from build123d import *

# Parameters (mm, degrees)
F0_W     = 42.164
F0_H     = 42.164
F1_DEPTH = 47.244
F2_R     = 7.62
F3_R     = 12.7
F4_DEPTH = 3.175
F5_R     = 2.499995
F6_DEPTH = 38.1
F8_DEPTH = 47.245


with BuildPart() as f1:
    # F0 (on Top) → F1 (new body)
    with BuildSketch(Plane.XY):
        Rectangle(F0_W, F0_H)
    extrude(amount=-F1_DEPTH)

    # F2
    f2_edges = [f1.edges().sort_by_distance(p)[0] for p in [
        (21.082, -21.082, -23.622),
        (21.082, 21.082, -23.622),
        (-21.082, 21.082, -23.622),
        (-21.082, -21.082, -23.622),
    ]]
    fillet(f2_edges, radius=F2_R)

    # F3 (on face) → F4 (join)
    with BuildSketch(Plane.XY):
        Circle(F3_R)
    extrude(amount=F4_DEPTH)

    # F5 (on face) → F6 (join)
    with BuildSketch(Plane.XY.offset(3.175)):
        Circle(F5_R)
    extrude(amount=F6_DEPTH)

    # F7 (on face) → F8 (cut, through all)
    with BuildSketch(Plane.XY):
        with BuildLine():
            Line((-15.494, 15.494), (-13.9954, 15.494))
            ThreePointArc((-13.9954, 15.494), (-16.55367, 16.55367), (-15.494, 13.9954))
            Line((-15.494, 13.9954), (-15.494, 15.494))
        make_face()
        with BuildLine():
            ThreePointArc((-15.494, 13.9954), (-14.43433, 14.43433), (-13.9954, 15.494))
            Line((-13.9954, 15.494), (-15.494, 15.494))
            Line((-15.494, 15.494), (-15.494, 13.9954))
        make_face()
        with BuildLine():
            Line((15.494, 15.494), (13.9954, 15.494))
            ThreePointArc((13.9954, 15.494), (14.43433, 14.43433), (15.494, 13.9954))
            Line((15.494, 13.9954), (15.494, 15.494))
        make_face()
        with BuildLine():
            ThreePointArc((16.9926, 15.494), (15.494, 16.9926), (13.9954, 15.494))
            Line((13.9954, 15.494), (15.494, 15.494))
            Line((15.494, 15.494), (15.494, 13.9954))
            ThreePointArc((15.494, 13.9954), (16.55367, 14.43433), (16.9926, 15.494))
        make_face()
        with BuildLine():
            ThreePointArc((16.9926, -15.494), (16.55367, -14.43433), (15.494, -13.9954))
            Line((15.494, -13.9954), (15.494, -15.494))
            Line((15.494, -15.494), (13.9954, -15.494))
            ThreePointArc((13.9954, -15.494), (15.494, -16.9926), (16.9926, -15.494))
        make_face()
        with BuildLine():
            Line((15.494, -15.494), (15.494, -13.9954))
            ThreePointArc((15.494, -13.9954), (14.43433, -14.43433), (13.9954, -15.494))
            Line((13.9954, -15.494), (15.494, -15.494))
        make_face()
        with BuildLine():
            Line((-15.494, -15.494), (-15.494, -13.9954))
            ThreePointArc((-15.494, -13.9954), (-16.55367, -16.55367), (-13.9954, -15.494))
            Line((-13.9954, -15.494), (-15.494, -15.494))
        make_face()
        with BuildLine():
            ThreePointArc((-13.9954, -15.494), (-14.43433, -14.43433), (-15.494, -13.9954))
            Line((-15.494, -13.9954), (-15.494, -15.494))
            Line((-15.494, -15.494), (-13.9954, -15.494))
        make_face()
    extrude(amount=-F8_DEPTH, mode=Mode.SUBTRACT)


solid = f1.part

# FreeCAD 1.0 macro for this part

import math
import FreeCAD as App
import Part
import Sketcher
from FreeCAD import Vector
Q = App.Units.Quantity


def edges_at(feature, points):
    """Names of the edges that pass closest to the given points."""
    edges = feature.Shape.Edges
    near = lambda p: min(range(len(edges)), key=lambda i: edges[i].distToShape(Part.Vertex(*p))[0])
    return sorted({f"Edge{near(p) + 1}" for p in points})


def add_polygon(sketch, points):
    """Adds a closed chain of lines whose ends are joined by coincident constraints."""
    first, n = sketch.GeometryCount, len(points)
    for a, b in zip(points, points[1:] + points[:1]):
        sketch.addGeometry(Part.LineSegment(App.Vector(*a, 0), App.Vector(*b, 0)), False)
    for i in range(n):
        sketch.addConstraint(Sketcher.Constraint("Coincident", first + i, 2, first + (i + 1) % n, 1))

doc = App.newDocument("Part")
body = doc.addObject("PartDesign::Body", "Body")

sketch1 = body.newObject("Sketcher::SketchObject", "Sketch")
sketch1.AttachmentSupport = (doc.getObject("XY_Plane"), [""])
sketch1.MapMode = "FlatFace"
add_polygon(sketch1, [(-21.082, 21.082), (-21.082, -21.082), (21.082, -21.082), (21.082, 21.082)])
sketch1.addConstraint(Sketcher.Constraint("Vertical", 0))
sketch1.addConstraint(Sketcher.Constraint("Horizontal", 1))
sketch1.addConstraint(Sketcher.Constraint("Vertical", 2))
sketch1.addConstraint(Sketcher.Constraint("Horizontal", 3))
sketch1.addConstraint(Sketcher.Constraint("Symmetric", 0, 2, 2, 2, -1, 1))
sketch1.addConstraint(Sketcher.Constraint("Equal", 3, 0))
sketch1.addConstraint(Sketcher.Constraint("DistanceX", 1, 1, 1, 2, Q("1.66 in")))
pad1 = body.newObject("PartDesign::Pad", "Pad")
pad1.Profile = sketch1
pad1.Length = Q("1.86 in")
pad1.Reversed = True
doc.recompute()

fillet = body.newObject("PartDesign::Fillet", "Fillet")
fillet.Base = (pad1, edges_at(pad1, [
    (21.082, -21.082, -23.622),
    (21.082, 21.082, -23.622),
    (-21.082, 21.082, -23.622),
    (-21.082, -21.082, -23.622),
]))
fillet.Radius = Q("0.3 in")

sketch2 = body.newObject("Sketcher::SketchObject", "Sketch001")
sketch2.AttachmentSupport = (doc.getObject("XY_Plane"), [""])
sketch2.MapMode = "FlatFace"
sketch2.addGeometry(Part.Circle(Vector(0, 0, 0), Vector(0, 0, 1), 12.7), False)
sketch2.addConstraint(Sketcher.Constraint("Coincident", 0, 3, -1, 1))
sketch2.addConstraint(Sketcher.Constraint("Diameter", 0, Q("1 in")))
pad2 = body.newObject("PartDesign::Pad", "Pad001")
pad2.Profile = sketch2
pad2.Length = Q("0.125 in")

sketch3 = body.newObject("Sketcher::SketchObject", "Sketch002")
sketch3.AttachmentSupport = (doc.getObject("XY_Plane"), [""])
sketch3.MapMode = "FlatFace"
sketch3.AttachmentOffset = App.Placement(Vector(0, 0, 0.125 * 25.4), App.Rotation())
sketch3.addGeometry(Part.Circle(Vector(0, 0, 0), Vector(0, 0, 1), 2.499995), False)
sketch3.addConstraint(Sketcher.Constraint("Coincident", 0, 3, -1, 1))
sketch3.addConstraint(Sketcher.Constraint("Diameter", 0, 4.99999))
pad3 = body.newObject("PartDesign::Pad", "Pad002")
pad3.Profile = sketch3
pad3.Length = Q("1.5 in")

sketch4 = body.newObject("Sketcher::SketchObject", "Sketch003")
sketch4.AttachmentSupport = (doc.getObject("XY_Plane"), [""])
sketch4.MapMode = "FlatFace"
sketch4.addGeometry(Part.ArcOfCircle(Part.Circle(Vector(-15.494, 15.494, 0), Vector(0, 0, 1), 1.4986), math.radians(0.000005), math.radians(269.999995)), False)
sketch4.addGeometry(Part.ArcOfCircle(Part.Circle(Vector(-15.494001, 15.494001, 0), Vector(0, 0, 1), 1.498601), math.radians(-89.999971), math.radians(-0.000029)), False)
sketch4.addGeometry(Part.ArcOfCircle(Part.Circle(Vector(15.494001, 15.494001, 0), Vector(0, 0, 1), 1.498601), math.radians(-179.999971), math.radians(-90.000029)), False)
sketch4.addGeometry(Part.ArcOfCircle(Part.Circle(Vector(15.493999, 15.494001, 0), Vector(0, 0, 1), 1.498601), math.radians(-89.999971), math.radians(-0.000029)), False)
sketch4.addGeometry(Part.ArcOfCircle(Part.Circle(Vector(15.494, 15.494, 0), Vector(0, 0, 1), 1.4986), math.radians(0), math.radians(180)), False)
sketch4.addGeometry(Part.ArcOfCircle(Part.Circle(Vector(15.493999, -15.494001, 0), Vector(0, 0, 1), 1.498601), math.radians(0.000029), math.radians(89.999971)), False)
sketch4.addGeometry(Part.ArcOfCircle(Part.Circle(Vector(15.494001, -15.494001, 0), Vector(0, 0, 1), 1.498601), math.radians(90.000029), math.radians(179.999971)), False)
sketch4.addGeometry(Part.ArcOfCircle(Part.Circle(Vector(15.494, -15.494, 0), Vector(0, 0, 1), 1.4986), math.radians(180), math.radians(360)), False)
sketch4.addGeometry(Part.ArcOfCircle(Part.Circle(Vector(-15.494, -15.494, 0), Vector(0, 0, 1), 1.4986), math.radians(90.000005), math.radians(359.999995)), False)
sketch4.addGeometry(Part.ArcOfCircle(Part.Circle(Vector(-15.494001, -15.494001, 0), Vector(0, 0, 1), 1.498601), math.radians(0.000029), math.radians(89.999971)), False)
sketch4.addConstraint(Sketcher.Constraint("Tangent", 0, 1, 1, 2))
sketch4.addConstraint(Sketcher.Constraint("Coincident", 1, 1, 0, 2))
sketch4.addConstraint(Sketcher.Constraint("Tangent", 2, 2, 3, 1))
sketch4.addConstraint(Sketcher.Constraint("Tangent", 3, 2, 4, 1))
sketch4.addConstraint(Sketcher.Constraint("Tangent", 4, 2, 2, 1))
sketch4.addConstraint(Sketcher.Constraint("Tangent", 5, 2, 6, 1))
sketch4.addConstraint(Sketcher.Constraint("Tangent", 6, 2, 7, 1))
sketch4.addConstraint(Sketcher.Constraint("Tangent", 7, 2, 5, 1))
sketch4.addConstraint(Sketcher.Constraint("Tangent", 8, 1, 9, 2))
sketch4.addConstraint(Sketcher.Constraint("Coincident", 9, 1, 8, 2))
sketch4.addConstraint(Sketcher.Constraint("Equal", 1, 2))
sketch4.addConstraint(Sketcher.Constraint("Equal", 4, 5))
sketch4.addConstraint(Sketcher.Constraint("Equal", 7, 8))
sketch4.addConstraint(Sketcher.Constraint("Symmetric", 0, 3, 5, 3, -1, 1))
sketch4.addConstraint(Sketcher.Constraint("Symmetric", 2, 3, 8, 3, -1, 1))
sketch4.addConstraint(Sketcher.Constraint("Symmetric", 0, 3, 2, 3, -2))
sketch4.addConstraint(Sketcher.Constraint("Horizontal", 4, 3, 0, 1))
sketch4.addConstraint(Sketcher.Constraint("Horizontal", 0, 1, 3, 2))
sketch4.addConstraint(Sketcher.Constraint("Horizontal", 3, 2, 4, 2))
sketch4.addConstraint(Sketcher.Constraint("Horizontal", 9, 3, 6, 2))
sketch4.addConstraint(Sketcher.Constraint("Horizontal", 6, 2, 7, 2))
sketch4.addConstraint(Sketcher.Constraint("Horizontal", 7, 2, 9, 1))
sketch4.addConstraint(Sketcher.Constraint("Vertical", 9, 3, 1, 1))
sketch4.addConstraint(Sketcher.Constraint("Vertical", 7, 3, 2, 2))
sketch4.addConstraint(Sketcher.Constraint("Vertical", 2, 2, 5, 2))
sketch4.addConstraint(Sketcher.Constraint("Vertical", 1, 1, 8, 1))
sketch4.addConstraint(Sketcher.Constraint("Radius", 0, Q("0.059 in")))
sketch4.addConstraint(Sketcher.Constraint("DistanceX", 0, 3, -1, 1, Q("0.61 in")))
sketch4.addConstraint(Sketcher.Constraint("DistanceY", -1, 1, 0, 3, Q("0.61 in")))
pocket1 = body.newObject("PartDesign::Pocket", "Pocket")
pocket1.Profile = sketch4
pocket1.Type = "ThroughAll"

doc.recompute()
